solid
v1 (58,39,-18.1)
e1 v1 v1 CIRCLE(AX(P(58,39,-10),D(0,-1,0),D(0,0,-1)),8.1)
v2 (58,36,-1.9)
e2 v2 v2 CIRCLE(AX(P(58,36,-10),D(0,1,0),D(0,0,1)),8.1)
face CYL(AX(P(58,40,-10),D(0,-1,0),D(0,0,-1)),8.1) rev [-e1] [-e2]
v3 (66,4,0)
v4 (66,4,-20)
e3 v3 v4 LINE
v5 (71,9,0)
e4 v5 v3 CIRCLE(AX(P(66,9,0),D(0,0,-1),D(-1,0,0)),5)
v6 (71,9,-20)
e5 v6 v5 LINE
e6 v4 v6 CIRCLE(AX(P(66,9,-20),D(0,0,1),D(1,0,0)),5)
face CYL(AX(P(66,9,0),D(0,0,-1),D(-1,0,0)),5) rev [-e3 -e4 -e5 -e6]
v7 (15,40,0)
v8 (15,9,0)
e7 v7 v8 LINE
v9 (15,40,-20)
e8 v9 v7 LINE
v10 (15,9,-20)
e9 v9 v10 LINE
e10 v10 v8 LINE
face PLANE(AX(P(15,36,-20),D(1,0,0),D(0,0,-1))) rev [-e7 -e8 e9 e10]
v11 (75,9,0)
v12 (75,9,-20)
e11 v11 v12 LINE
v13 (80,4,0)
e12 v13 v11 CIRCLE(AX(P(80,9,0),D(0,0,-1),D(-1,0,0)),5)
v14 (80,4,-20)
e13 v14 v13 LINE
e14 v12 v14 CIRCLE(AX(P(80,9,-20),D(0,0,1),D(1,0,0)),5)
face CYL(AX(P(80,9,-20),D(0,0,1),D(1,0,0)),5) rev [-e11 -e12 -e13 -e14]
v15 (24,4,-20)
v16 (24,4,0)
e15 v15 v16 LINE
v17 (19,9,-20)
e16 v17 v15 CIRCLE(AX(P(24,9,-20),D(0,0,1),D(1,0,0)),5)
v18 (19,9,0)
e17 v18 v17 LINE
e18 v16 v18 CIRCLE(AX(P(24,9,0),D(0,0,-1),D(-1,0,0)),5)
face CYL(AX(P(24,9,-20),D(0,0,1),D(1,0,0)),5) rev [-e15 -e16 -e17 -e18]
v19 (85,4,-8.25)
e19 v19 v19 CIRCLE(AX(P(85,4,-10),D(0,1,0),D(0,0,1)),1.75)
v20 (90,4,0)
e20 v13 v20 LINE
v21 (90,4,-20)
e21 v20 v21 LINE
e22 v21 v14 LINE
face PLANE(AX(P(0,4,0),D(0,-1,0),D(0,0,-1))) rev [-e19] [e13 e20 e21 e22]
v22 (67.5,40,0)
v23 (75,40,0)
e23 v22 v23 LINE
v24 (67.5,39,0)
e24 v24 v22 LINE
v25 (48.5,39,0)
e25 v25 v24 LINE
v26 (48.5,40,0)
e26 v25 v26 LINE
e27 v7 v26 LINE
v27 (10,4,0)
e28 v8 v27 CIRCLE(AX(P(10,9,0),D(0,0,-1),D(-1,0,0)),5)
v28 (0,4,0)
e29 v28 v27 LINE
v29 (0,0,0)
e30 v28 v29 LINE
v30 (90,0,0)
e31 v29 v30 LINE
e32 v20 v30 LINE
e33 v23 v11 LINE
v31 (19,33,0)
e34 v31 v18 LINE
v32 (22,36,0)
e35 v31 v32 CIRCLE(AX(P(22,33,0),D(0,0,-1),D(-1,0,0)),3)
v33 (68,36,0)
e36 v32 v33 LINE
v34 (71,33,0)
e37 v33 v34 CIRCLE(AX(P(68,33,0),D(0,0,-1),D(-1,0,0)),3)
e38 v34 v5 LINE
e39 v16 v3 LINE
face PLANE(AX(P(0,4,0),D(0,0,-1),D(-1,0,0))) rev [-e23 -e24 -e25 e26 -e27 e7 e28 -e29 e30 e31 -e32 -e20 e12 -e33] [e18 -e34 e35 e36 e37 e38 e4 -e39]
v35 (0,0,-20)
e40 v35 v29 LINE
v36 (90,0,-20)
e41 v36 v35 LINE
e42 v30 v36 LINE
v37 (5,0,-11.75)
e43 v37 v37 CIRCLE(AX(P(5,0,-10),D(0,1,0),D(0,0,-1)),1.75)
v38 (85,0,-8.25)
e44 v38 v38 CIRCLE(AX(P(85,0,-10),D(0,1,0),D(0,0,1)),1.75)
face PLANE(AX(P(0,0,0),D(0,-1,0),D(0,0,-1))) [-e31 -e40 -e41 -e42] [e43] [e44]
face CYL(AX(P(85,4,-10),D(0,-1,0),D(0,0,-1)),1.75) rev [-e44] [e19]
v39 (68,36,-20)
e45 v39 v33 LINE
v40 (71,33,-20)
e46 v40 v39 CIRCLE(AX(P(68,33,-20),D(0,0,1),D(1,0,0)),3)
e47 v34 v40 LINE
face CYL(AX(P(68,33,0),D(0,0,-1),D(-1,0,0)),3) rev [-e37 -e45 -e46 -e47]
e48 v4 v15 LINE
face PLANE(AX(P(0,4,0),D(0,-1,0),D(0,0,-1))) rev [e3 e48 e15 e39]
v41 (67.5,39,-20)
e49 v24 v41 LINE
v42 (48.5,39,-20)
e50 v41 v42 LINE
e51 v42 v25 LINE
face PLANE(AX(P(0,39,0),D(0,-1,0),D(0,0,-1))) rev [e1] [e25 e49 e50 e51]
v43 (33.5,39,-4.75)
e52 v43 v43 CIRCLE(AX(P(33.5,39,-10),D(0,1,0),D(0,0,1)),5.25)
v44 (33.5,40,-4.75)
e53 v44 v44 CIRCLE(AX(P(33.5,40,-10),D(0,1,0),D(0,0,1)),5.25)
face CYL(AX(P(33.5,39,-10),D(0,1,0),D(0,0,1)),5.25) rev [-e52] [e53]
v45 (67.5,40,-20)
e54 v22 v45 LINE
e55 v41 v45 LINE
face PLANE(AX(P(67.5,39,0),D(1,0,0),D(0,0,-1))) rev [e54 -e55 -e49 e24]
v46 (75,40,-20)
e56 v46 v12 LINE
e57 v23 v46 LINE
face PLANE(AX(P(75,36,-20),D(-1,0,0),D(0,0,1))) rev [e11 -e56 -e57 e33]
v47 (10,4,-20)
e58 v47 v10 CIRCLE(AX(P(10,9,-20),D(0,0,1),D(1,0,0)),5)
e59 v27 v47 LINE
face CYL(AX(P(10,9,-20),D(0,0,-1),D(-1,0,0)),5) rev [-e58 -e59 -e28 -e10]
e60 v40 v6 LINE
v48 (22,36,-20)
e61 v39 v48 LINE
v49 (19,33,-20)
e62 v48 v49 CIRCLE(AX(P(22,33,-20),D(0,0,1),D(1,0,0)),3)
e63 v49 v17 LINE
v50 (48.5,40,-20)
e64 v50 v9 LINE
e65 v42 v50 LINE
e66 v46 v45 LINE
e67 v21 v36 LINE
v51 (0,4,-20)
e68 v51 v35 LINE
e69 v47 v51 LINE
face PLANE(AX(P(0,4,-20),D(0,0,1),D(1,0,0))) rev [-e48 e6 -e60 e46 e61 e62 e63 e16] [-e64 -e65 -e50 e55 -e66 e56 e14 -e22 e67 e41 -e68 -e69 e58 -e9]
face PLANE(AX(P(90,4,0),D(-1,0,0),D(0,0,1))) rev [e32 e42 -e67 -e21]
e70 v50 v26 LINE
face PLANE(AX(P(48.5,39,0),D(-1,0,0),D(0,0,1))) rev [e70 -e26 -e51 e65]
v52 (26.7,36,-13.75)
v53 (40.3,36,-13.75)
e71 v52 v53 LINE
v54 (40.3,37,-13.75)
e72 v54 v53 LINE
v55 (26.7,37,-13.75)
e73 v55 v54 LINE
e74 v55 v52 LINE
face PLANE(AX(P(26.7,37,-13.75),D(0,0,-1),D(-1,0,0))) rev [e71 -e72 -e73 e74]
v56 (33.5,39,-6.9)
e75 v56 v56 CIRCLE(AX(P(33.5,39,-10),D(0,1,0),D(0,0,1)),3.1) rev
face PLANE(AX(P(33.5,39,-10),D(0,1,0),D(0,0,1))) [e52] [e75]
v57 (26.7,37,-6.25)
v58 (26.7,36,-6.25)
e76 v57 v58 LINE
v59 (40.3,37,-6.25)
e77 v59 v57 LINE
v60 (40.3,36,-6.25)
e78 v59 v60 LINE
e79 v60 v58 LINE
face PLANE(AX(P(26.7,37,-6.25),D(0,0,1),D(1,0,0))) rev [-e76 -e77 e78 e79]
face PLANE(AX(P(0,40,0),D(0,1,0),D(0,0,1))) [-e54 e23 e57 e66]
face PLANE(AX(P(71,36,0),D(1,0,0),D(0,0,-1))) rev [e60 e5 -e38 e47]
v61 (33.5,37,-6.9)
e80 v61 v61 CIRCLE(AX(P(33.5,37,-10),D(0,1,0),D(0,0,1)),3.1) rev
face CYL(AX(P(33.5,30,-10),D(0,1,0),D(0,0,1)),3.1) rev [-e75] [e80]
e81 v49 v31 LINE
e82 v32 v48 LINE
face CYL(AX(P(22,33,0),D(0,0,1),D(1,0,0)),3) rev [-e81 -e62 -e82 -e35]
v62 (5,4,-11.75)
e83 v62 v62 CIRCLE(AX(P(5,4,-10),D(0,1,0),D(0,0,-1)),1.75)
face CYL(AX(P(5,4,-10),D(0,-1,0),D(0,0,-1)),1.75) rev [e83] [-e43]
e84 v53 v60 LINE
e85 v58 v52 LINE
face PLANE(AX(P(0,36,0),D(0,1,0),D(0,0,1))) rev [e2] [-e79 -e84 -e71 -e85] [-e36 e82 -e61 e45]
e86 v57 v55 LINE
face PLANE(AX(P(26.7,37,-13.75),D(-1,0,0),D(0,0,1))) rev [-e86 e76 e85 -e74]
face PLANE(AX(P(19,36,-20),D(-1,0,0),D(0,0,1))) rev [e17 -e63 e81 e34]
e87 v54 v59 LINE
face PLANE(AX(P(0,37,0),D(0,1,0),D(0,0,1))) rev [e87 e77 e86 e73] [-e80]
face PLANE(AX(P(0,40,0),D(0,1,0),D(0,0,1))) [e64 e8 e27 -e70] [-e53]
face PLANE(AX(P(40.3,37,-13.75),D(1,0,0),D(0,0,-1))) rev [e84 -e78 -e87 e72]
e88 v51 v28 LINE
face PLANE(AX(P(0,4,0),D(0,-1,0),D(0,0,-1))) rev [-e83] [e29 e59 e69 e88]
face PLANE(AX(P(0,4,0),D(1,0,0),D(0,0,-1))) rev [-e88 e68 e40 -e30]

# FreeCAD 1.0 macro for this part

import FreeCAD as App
import Part
import Sketcher


def edges_at(feature, points):
    """Names of the edges that pass closest to the given points."""
    edges = feature.Shape.Edges
    near = lambda p: min(range(len(edges)), key=lambda i: edges[i].distToShape(Part.Vertex(*p))[0])
    return sorted({f"Edge{near(p) + 1}" for p in points})

doc = App.newDocument("Part")
body = doc.addObject("PartDesign::Body", "Body")

# Sketch on XZ plane
sketch1 = body.newObject("Sketcher::SketchObject", "Sketch")
sketch1.AttachmentSupport = (doc.getObject("XZ_Plane"), [""])
sketch1.MapMode = "FlatFace"
sketch1.addGeometry(Part.LineSegment(App.Vector(0, -20, 0), App.Vector(0, 0, 0)), False)
sketch1.addGeometry(Part.LineSegment(App.Vector(0, 0, 0), App.Vector(90, 0, 0)), False)
sketch1.addGeometry(Part.LineSegment(App.Vector(90, 0, 0), App.Vector(90, -20, 0)), False)
sketch1.addGeometry(Part.LineSegment(App.Vector(90, -20, 0), App.Vector(0, -20, 0)), False)
sketch1.addGeometry(Part.Circle(App.Vector(5, -10, 0), App.Vector(0, 0, 1), 1.75), False)
sketch1.addGeometry(Part.Circle(App.Vector(85, -10, 0), App.Vector(0, 0, 1), 1.75), False)
sketch1.addConstraint(Sketcher.Constraint("Coincident", 0, 2, 1, 1))
sketch1.addConstraint(Sketcher.Constraint("Coincident", 1, 2, 2, 1))
sketch1.addConstraint(Sketcher.Constraint("Coincident", 2, 2, 3, 1))
sketch1.addConstraint(Sketcher.Constraint("Coincident", 3, 2, 0, 1))
sketch1.addConstraint(Sketcher.Constraint("Vertical", 0))
sketch1.addConstraint(Sketcher.Constraint("Horizontal", 1))
sketch1.addConstraint(Sketcher.Constraint("Vertical", 2))
sketch1.addConstraint(Sketcher.Constraint("Horizontal", 3))
sketch1.addConstraint(Sketcher.Constraint("Coincident", 0, 2, -1, 1))
sketch1.addConstraint(Sketcher.Constraint("Equal", 4, 5))
sketch1.addConstraint(Sketcher.Constraint("Horizontal", 4, 3, 5, 3))
sketch1.addConstraint(Sketcher.Constraint("Diameter", 4, 3.5))
sketch1.addConstraint(Sketcher.Constraint("DistanceX", 1, 1, 1, 2, 90.0))
sketch1.addConstraint(Sketcher.Constraint("DistanceY", 0, 1, 0, 2, 20.0))
sketch1.addConstraint(Sketcher.Constraint("DistanceX", -1, 1, 4, 3, 5.0))
sketch1.addConstraint(Sketcher.Constraint("DistanceY", 4, 3, -1, 1, 10.0))
sketch1.addConstraint(Sketcher.Constraint("DistanceX", -1, 1, 5, 3, 85.0))
pad1 = body.newObject("PartDesign::Pad", "Pad")
pad1.Profile = sketch1
pad1.Length = 4
pad1.Reversed = True

# Sketch on XZ plane
sketch2 = body.newObject("Sketcher::SketchObject", "Sketch001")
sketch2.AttachmentSupport = (doc.getObject("XZ_Plane"), [""])
sketch2.MapMode = "FlatFace"
sketch2.AttachmentOffset = App.Placement(App.Vector(0, 0, -4), App.Rotation())
sketch2.addGeometry(Part.LineSegment(App.Vector(15, -20, 0), App.Vector(15, 0, 0)), False)
sketch2.addGeometry(Part.LineSegment(App.Vector(15, 0, 0), App.Vector(19, 0, 0)), False)
sketch2.addGeometry(Part.LineSegment(App.Vector(19, 0, 0), App.Vector(19, -20, 0)), False)
sketch2.addGeometry(Part.LineSegment(App.Vector(19, -20, 0), App.Vector(15, -20, 0)), False)
sketch2.addGeometry(Part.LineSegment(App.Vector(71, -20, 0), App.Vector(71, 0, 0)), False)
sketch2.addGeometry(Part.LineSegment(App.Vector(71, 0, 0), App.Vector(75, 0, 0)), False)
sketch2.addGeometry(Part.LineSegment(App.Vector(75, 0, 0), App.Vector(75, -20, 0)), False)
sketch2.addGeometry(Part.LineSegment(App.Vector(75, -20, 0), App.Vector(71, -20, 0)), False)
sketch2.addConstraint(Sketcher.Constraint("Coincident", 0, 2, 1, 1))
sketch2.addConstraint(Sketcher.Constraint("Coincident", 1, 2, 2, 1))
sketch2.addConstraint(Sketcher.Constraint("Coincident", 2, 2, 3, 1))
sketch2.addConstraint(Sketcher.Constraint("Coincident", 3, 2, 0, 1))
sketch2.addConstraint(Sketcher.Constraint("Coincident", 4, 2, 5, 1))
sketch2.addConstraint(Sketcher.Constraint("Coincident", 5, 2, 6, 1))
sketch2.addConstraint(Sketcher.Constraint("Coincident", 6, 2, 7, 1))
sketch2.addConstraint(Sketcher.Constraint("Coincident", 7, 2, 4, 1))
sketch2.addConstraint(Sketcher.Constraint("Vertical", 0))
sketch2.addConstraint(Sketcher.Constraint("Horizontal", 1))
sketch2.addConstraint(Sketcher.Constraint("Vertical", 2))
sketch2.addConstraint(Sketcher.Constraint("Horizontal", 3))
sketch2.addConstraint(Sketcher.Constraint("Vertical", 4))
sketch2.addConstraint(Sketcher.Constraint("Horizontal", 5))
sketch2.addConstraint(Sketcher.Constraint("Vertical", 6))
sketch2.addConstraint(Sketcher.Constraint("Horizontal", 7))
sketch2.addConstraint(Sketcher.Constraint("PointOnObject", 0, 2, -1))
sketch2.addConstraint(Sketcher.Constraint("PointOnObject", 4, 2, -1))
sketch2.addConstraint(Sketcher.Constraint("Horizontal", 3, 2, 6, 2))
sketch2.addConstraint(Sketcher.Constraint("Equal", 3, 5))
sketch2.addConstraint(Sketcher.Constraint("DistanceX", 1, 1, 1, 2, 4.0))
sketch2.addConstraint(Sketcher.Constraint("DistanceY", 0, 1, 0, 2, 20.0))
sketch2.addConstraint(Sketcher.Constraint("DistanceX", -1, 1, 0, 2, 15.0))
sketch2.addConstraint(Sketcher.Constraint("DistanceX", -1, 1, 4, 2, 71.0))
pad2 = body.newObject("PartDesign::Pad", "Pad001")
pad2.Profile = sketch2
pad2.Length = 32
pad2.Reversed = True

# Sketch on XZ plane
sketch3 = body.newObject("Sketcher::SketchObject", "Sketch002")
sketch3.AttachmentSupport = (doc.getObject("XZ_Plane"), [""])
sketch3.MapMode = "FlatFace"
sketch3.AttachmentOffset = App.Placement(App.Vector(0, 0, -36), App.Rotation())
sketch3.addGeometry(Part.LineSegment(App.Vector(15, -20, 0), App.Vector(15, 0, 0)), False)
sketch3.addGeometry(Part.LineSegment(App.Vector(15, 0, 0), App.Vector(75, 0, 0)), False)
sketch3.addGeometry(Part.LineSegment(App.Vector(75, 0, 0), App.Vector(75, -20, 0)), False)
sketch3.addGeometry(Part.LineSegment(App.Vector(75, -20, 0), App.Vector(15, -20, 0)), False)
sketch3.addGeometry(Part.Circle(App.Vector(58, -10, 0), App.Vector(0, 0, 1), 8.1), False)
sketch3.addConstraint(Sketcher.Constraint("Coincident", 0, 2, 1, 1))
sketch3.addConstraint(Sketcher.Constraint("Coincident", 1, 2, 2, 1))
sketch3.addConstraint(Sketcher.Constraint("Coincident", 2, 2, 3, 1))
sketch3.addConstraint(Sketcher.Constraint("Coincident", 3, 2, 0, 1))
sketch3.addConstraint(Sketcher.Constraint("Vertical", 0))
sketch3.addConstraint(Sketcher.Constraint("Horizontal", 1))
sketch3.addConstraint(Sketcher.Constraint("Vertical", 2))
sketch3.addConstraint(Sketcher.Constraint("Horizontal", 3))
sketch3.addConstraint(Sketcher.Constraint("PointOnObject", 0, 2, -1))
sketch3.addConstraint(Sketcher.Constraint("Diameter", 4, 16.2))
sketch3.addConstraint(Sketcher.Constraint("DistanceX", 1, 1, 1, 2, 60.0))
sketch3.addConstraint(Sketcher.Constraint("DistanceY", 0, 1, 0, 2, 20.0))
sketch3.addConstraint(Sketcher.Constraint("DistanceX", -1, 1, 4, 3, 58.0))
sketch3.addConstraint(Sketcher.Constraint("DistanceY", 4, 3, -1, 1, 10.0))
sketch3.addConstraint(Sketcher.Constraint("DistanceX", -1, 1, 0, 2, 15.0))
pad3 = body.newObject("PartDesign::Pad", "Pad002")
pad3.Profile = sketch3
pad3.Length = 4
pad3.Reversed = True
doc.recompute()

fillet = body.newObject("PartDesign::Fillet", "Fillet")
fillet.Base = (pad3, edges_at(pad3, [
    (15, 4, -10),
    (19, 4, -10),
    (75, 4, -10),
    (71, 4, -10),
]))
fillet.Radius = 5
doc.recompute()

fillet2 = body.newObject("PartDesign::Fillet", "Fillet001")
fillet2.Base = (fillet, edges_at(fillet, [(19, 36, -10), (71, 36, -10)]))
fillet2.Radius = 3

# Sketch on XZ plane
sketch4 = body.newObject("Sketcher::SketchObject", "Sketch003")
sketch4.AttachmentSupport = (doc.getObject("XZ_Plane"), [""])
sketch4.MapMode = "FlatFace"
sketch4.AttachmentOffset = App.Placement(App.Vector(0, 0, -40), App.Rotation())
sketch4.addGeometry(Part.LineSegment(App.Vector(48.5, -20, 0), App.Vector(48.5, 0, 0)), False)
sketch4.addGeometry(Part.LineSegment(App.Vector(48.5, 0, 0), App.Vector(67.5, 0, 0)), False)
sketch4.addGeometry(Part.LineSegment(App.Vector(67.5, 0, 0), App.Vector(67.5, -20, 0)), False)
sketch4.addGeometry(Part.LineSegment(App.Vector(67.5, -20, 0), App.Vector(48.5, -20, 0)), False)
sketch4.addConstraint(Sketcher.Constraint("Coincident", 0, 2, 1, 1))
sketch4.addConstraint(Sketcher.Constraint("Coincident", 1, 2, 2, 1))
sketch4.addConstraint(Sketcher.Constraint("Coincident", 2, 2, 3, 1))
sketch4.addConstraint(Sketcher.Constraint("Coincident", 3, 2, 0, 1))
sketch4.addConstraint(Sketcher.Constraint("Vertical", 0))
sketch4.addConstraint(Sketcher.Constraint("Horizontal", 1))
sketch4.addConstraint(Sketcher.Constraint("Vertical", 2))
sketch4.addConstraint(Sketcher.Constraint("Horizontal", 3))
sketch4.addConstraint(Sketcher.Constraint("PointOnObject", 0, 2, -1))
sketch4.addConstraint(Sketcher.Constraint("DistanceX", 1, 1, 1, 2, 19.0))
sketch4.addConstraint(Sketcher.Constraint("DistanceY", 0, 1, 0, 2, 20.0))
sketch4.addConstraint(Sketcher.Constraint("DistanceX", -1, 1, 0, 2, 48.5))
pocket1 = body.newObject("PartDesign::Pocket", "Pocket")
pocket1.Profile = sketch4
pocket1.Length = 1
pocket1.Reversed = True

# Sketch on XZ plane
sketch5 = body.newObject("Sketcher::SketchObject", "Sketch004")
sketch5.AttachmentSupport = (doc.getObject("XZ_Plane"), [""])
sketch5.MapMode = "FlatFace"
sketch5.AttachmentOffset = App.Placement(App.Vector(0, 0, -40), App.Rotation())
sketch5.addGeometry(Part.Circle(App.Vector(33.5, -10, 0), App.Vector(0, 0, 1), 3.1), False)
sketch5.addConstraint(Sketcher.Constraint("Diameter", 0, 6.2))
sketch5.addConstraint(Sketcher.Constraint("DistanceY", 0, 3, -1, 1, 10.0))
sketch5.addConstraint(Sketcher.Constraint("DistanceX", -1, 1, 0, 3, 33.5))
pocket2 = body.newObject("PartDesign::Pocket", "Pocket001")
pocket2.Profile = sketch5
pocket2.Length = 10
pocket2.Reversed = True

# Sketch on XZ plane
sketch6 = body.newObject("Sketcher::SketchObject", "Sketch005")
sketch6.AttachmentSupport = (doc.getObject("XZ_Plane"), [""])
sketch6.MapMode = "FlatFace"
sketch6.AttachmentOffset = App.Placement(App.Vector(0, 0, -36), App.Rotation())
sketch6.addGeometry(Part.LineSegment(App.Vector(26.7, -6.25, 0), App.Vector(26.7, -13.75, 0)), False)
sketch6.addGeometry(Part.LineSegment(App.Vector(26.7, -13.75, 0), App.Vector(40.3, -13.75, 0)), False)
sketch6.addGeometry(Part.LineSegment(App.Vector(40.3, -13.75, 0), App.Vector(40.3, -6.25, 0)), False)
sketch6.addGeometry(Part.LineSegment(App.Vector(40.3, -6.25, 0), App.Vector(26.7, -6.25, 0)), False)
sketch6.addConstraint(Sketcher.Constraint("Coincident", 0, 2, 1, 1))
sketch6.addConstraint(Sketcher.Constraint("Coincident", 1, 2, 2, 1))
sketch6.addConstraint(Sketcher.Constraint("Coincident", 2, 2, 3, 1))
sketch6.addConstraint(Sketcher.Constraint("Coincident", 3, 2, 0, 1))
sketch6.addConstraint(Sketcher.Constraint("Vertical", 0))
sketch6.addConstraint(Sketcher.Constraint("Horizontal", 1))
sketch6.addConstraint(Sketcher.Constraint("Vertical", 2))
sketch6.addConstraint(Sketcher.Constraint("Horizontal", 3))
sketch6.addConstraint(Sketcher.Constraint("DistanceX", 1, 1, 1, 2, 13.6))
sketch6.addConstraint(Sketcher.Constraint("DistanceY", 0, 2, 0, 1, 7.5))
sketch6.addConstraint(Sketcher.Constraint("DistanceX", -1, 1, 0, 2, 26.7))
sketch6.addConstraint(Sketcher.Constraint("DistanceY", 0, 2, -1, 1, 13.75))
pocket3 = body.newObject("PartDesign::Pocket", "Pocket002")
pocket3.Profile = sketch6
pocket3.Length = 1

# Sketch on XZ plane
sketch7 = body.newObject("Sketcher::SketchObject", "Sketch006")
sketch7.AttachmentSupport = (doc.getObject("XZ_Plane"), [""])
sketch7.MapMode = "FlatFace"
sketch7.AttachmentOffset = App.Placement(App.Vector(0, 0, -40), App.Rotation())
sketch7.addGeometry(Part.Circle(App.Vector(33.5, -10, 0), App.Vector(0, 0, 1), 5.25), False)
sketch7.addConstraint(Sketcher.Constraint("Diameter", 0, 10.5))
sketch7.addConstraint(Sketcher.Constraint("DistanceY", 0, 3, -1, 1, 10.0))
sketch7.addConstraint(Sketcher.Constraint("DistanceX", -1, 1, 0, 3, 33.5))
pocket4 = body.newObject("PartDesign::Pocket", "Pocket003")
pocket4.Profile = sketch7
pocket4.Length = 1
pocket4.Reversed = True

doc.recompute()
